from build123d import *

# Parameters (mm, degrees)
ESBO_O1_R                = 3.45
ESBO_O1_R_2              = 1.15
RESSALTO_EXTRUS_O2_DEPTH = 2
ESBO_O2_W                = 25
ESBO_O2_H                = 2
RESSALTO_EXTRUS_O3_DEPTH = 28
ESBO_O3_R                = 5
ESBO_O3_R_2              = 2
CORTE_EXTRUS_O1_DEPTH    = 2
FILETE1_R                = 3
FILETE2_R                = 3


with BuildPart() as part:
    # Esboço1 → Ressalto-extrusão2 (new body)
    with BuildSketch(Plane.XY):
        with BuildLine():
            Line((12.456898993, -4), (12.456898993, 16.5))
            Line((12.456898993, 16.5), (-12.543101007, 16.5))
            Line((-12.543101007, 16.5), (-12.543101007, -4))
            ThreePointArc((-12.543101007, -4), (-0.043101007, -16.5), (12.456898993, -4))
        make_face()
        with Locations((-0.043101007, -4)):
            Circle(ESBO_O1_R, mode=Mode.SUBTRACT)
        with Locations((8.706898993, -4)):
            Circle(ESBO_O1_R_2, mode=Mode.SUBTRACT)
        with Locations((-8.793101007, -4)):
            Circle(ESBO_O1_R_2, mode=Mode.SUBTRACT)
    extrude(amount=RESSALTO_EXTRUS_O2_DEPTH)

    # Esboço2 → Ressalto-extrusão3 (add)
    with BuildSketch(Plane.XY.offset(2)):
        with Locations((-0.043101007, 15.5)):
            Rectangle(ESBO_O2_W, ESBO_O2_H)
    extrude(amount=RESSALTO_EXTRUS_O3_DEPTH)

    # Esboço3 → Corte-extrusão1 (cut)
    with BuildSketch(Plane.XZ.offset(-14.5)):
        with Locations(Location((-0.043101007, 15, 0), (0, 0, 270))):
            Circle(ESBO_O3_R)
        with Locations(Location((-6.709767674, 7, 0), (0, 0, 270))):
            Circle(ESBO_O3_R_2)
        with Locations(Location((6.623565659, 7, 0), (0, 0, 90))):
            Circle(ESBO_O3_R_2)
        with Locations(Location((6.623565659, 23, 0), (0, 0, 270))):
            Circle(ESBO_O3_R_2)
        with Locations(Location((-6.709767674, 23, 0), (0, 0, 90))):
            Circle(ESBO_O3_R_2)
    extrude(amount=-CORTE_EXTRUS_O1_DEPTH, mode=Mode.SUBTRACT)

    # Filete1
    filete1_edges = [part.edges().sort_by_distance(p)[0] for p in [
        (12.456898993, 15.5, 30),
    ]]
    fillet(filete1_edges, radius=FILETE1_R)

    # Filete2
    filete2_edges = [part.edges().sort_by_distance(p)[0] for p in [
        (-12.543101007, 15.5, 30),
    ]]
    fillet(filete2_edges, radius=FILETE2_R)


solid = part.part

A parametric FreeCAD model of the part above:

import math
import FreeCAD as App
import Part
import Sketcher

V = App.Vector


def edges_at(feature, points):
    """Names of the edges that pass closest to the given points."""
    edges = feature.Shape.Edges
    near = lambda p: min(range(len(edges)), key=lambda i: edges[i].distToShape(Part.Vertex(*p))[0])
    return sorted({f"Edge{near(p) + 1}" for p in points})


def add_polygon(sketch, points):
    """Adds a closed chain of lines whose ends are joined by coincident constraints."""
    first, n = sketch.GeometryCount, len(points)
    for a, b in zip(points, points[1:] + points[:1]):
        sketch.addGeometry(Part.LineSegment(App.Vector(*a, 0), App.Vector(*b, 0)), False)
    for i in range(n):
        sketch.addConstraint(Sketcher.Constraint("Coincident", first + i, 2, first + (i + 1) % n, 1))

doc = App.newDocument("Part")
body = doc.addObject("PartDesign::Body", "Body")

# Sketch on XY plane
sketch1 = body.newObject("Sketcher::SketchObject", "Sketch")
sketch1.AttachmentSupport = (doc.getObject("XY_Plane"), [""])
sketch1.MapMode = "FlatFace"
sketch1.addGeometry([
    Part.LineSegment(V(12.5, -4, 0), V(12.5, 16.5, 0)),  # 0
    Part.LineSegment(V(12.5, 16.5, 0), V(-12.5, 16.5, 0)),  # 1
    Part.LineSegment(V(-12.5, 16.5, 0), V(-12.5, -4, 0)),  # 2
    Part.ArcOfCircle(Part.Circle(V(0, -4, 0), V(0, 0, 1), 12.5), math.radians(180), math.radians(360)),  # 3
    Part.Circle(V(-8.8, -4, 0), V(0, 0, 1), 1.1),  # 4
    Part.Circle(V(0, -4, 0), V(0, 0, 1), 3.5),  # 5
    Part.Circle(V(8.7, -4, 0), V(0, 0, 1), 1.1),  # 6
], False)
sketch1.addConstraint([
    Sketcher.Constraint("Coincident", 0, 2, 1, 1),
    Sketcher.Constraint("Coincident", 1, 2, 2, 1),
    Sketcher.Constraint("Tangent", 2, 2, 3, 1),
    Sketcher.Constraint("Tangent", 3, 2, 0, 1),
    Sketcher.Constraint("Vertical", 0),
    Sketcher.Constraint("Horizontal", 1),
    Sketcher.Constraint("Vertical", 2),
    Sketcher.Constraint("Coincident", 5, 3, 3, 3),
    Sketcher.Constraint("Equal", 4, 6),
    Sketcher.Constraint("Horizontal", 3, 3, 4, 3),
    Sketcher.Constraint("Horizontal", 5, 3, 6, 3),
    Sketcher.Constraint("Diameter", 4, 2.3),
    Sketcher.Constraint("Diameter", 5, 6.9),
    Sketcher.Constraint("Radius", 3, 12.5),
    Sketcher.Constraint("DistanceY", 0, 1, 0, 2, 20.5),
    Sketcher.Constraint("DistanceY", 3, 3, -1, 1, 4.0),
    Sketcher.Constraint("DistanceX", 4, 3, 6, 3, 17.5),
    Sketcher.Constraint("DistanceX", 4, 3, 3, 3, 8.75),
    Sketcher.Constraint("DistanceX", 3, 3, -1, 1, 0.043101),
])
pad1 = body.newObject("PartDesign::Pad", "Pad")
pad1.Profile = sketch1
pad1.Length = 2

# Sketch on XY plane
sketch2 = body.newObject("Sketcher::SketchObject", "Sketch001")
sketch2.AttachmentSupport = (doc.getObject("XY_Plane"), [""])
sketch2.MapMode = "FlatFace"
sketch2.AttachmentOffset = App.Placement(V(0, 0, 2), App.Rotation())
add_polygon(sketch2, [(-12.5, 16.5), (-12.5, 14.5), (12.5, 14.5), (12.5, 16.5)])  # lines 0-3
sketch2.addConstraint([
    Sketcher.Constraint("Vertical", 0),
    Sketcher.Constraint("Horizontal", 1),
    Sketcher.Constraint("Vertical", 2),
    Sketcher.Constraint("Horizontal", 3),
    Sketcher.Constraint("DistanceX", 1, 1, 1, 2, 25.0),
    Sketcher.Constraint("DistanceY", 0, 2, 0, 1, 2.0),
    Sketcher.Constraint("DistanceY", -1, 1, 0, 2, 14.5),
    Sketcher.Constraint("DistanceX", 0, 2, -1, 1, 12.543101),
])
pad2 = body.newObject("PartDesign::Pad", "Pad001")
pad2.Profile = sketch2
pad2.Length = 28

# Sketch on XZ plane
sketch3 = body.newObject("Sketcher::SketchObject", "Sketch002")
sketch3.AttachmentSupport = (doc.getObject("XZ_Plane"), [""])
sketch3.MapMode = "FlatFace"
sketch3.AttachmentOffset = App.Placement(V(0, 0, -14.5), App.Rotation())
sketch3.addGeometry([
    Part.Circle(V(0, 15, 0), V(0, 0, 1), 5),  # 0
    Part.Circle(V(-6.7, 7, 0), V(0, 0, 1), 2),  # 1
    Part.Circle(V(6.6, 7, 0), V(0, 0, 1), 2),  # 2
    Part.Circle(V(6.6, 23, 0), V(0, 0, 1), 2),  # 3
    Part.Circle(V(-6.7, 23, 0), V(0, 0, 1), 2),  # 4
], False)
sketch3.addConstraint([
    Sketcher.Constraint("Equal", 1, 2),
    Sketcher.Constraint("Equal", 2, 3),
    Sketcher.Constraint("Equal", 3, 4),
    Sketcher.Constraint("Horizontal", 1, 3, 2, 3),
    Sketcher.Constraint("Horizontal", 3, 3, 4, 3),
    Sketcher.Constraint("Vertical", 2, 3, 3, 3),
    Sketcher.Constraint("Vertical", 1, 3, 4, 3),
    Sketcher.Constraint("Diameter", 0, 10.0),
    Sketcher.Constraint("Diameter", 1, 4.0),
    Sketcher.Constraint("DistanceY", -1, 1, 0, 3, 15.0),
    Sketcher.Constraint("DistanceY", -1, 1, 1, 3, 7.0),
    Sketcher.Constraint("DistanceY", -1, 1, 3, 3, 23.0),
    Sketcher.Constraint("DistanceX", 0, 3, -1, 1, 0.043101),
    Sketcher.Constraint("DistanceX", 1, 3, -1, 1, 6.709768),
    Sketcher.Constraint("DistanceX", -1, 1, 2, 3, 6.623566),
])
pocket1 = body.newObject("PartDesign::Pocket", "Pocket")
pocket1.Profile = sketch3
pocket1.Length = 2
doc.recompute()

fillet = body.newObject("PartDesign::Fillet", "Fillet")
fillet.Base = (pocket1, edges_at(pocket1, [(12.457, 15.5, 30)]))
fillet.Radius = 3
doc.recompute()

fillet2 = body.newObject("PartDesign::Fillet", "Fillet001")
fillet2.Base = (fillet, edges_at(fillet, [(-12.543, 15.5, 30)]))
fillet2.Radius = 3

doc.recompute()
